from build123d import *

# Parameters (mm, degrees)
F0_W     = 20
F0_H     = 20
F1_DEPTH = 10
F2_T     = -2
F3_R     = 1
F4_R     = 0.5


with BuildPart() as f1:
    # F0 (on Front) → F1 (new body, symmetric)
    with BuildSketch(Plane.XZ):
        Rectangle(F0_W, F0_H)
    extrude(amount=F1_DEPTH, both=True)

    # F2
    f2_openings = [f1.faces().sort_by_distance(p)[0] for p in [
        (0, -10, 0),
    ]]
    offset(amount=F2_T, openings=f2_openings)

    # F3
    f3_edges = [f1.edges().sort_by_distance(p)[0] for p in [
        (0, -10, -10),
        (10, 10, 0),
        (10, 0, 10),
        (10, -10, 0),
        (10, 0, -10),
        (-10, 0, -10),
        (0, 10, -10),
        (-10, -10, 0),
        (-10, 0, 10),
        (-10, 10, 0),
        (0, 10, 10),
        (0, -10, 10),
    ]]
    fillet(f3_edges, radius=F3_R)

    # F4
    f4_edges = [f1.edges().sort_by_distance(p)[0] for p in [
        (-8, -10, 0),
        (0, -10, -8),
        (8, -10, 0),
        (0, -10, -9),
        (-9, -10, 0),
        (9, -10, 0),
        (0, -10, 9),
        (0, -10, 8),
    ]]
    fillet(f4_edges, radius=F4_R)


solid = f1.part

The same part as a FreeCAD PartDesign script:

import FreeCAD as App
import Part
import Sketcher

V = App.Vector
Q = App.Units.Quantity


def edges_at(feature, points):
    """Names of the edges that pass closest to the given points."""
    edges = feature.Shape.Edges
    near = lambda p: min(range(len(edges)), key=lambda i: edges[i].distToShape(Part.Vertex(*p))[0])
    return sorted({f"Edge{near(p) + 1}" for p in points})


def faces_at(feature, points):
    """Names of the faces that lie closest to the given points."""
    faces = feature.Shape.Faces
    near = lambda p: min(range(len(faces)), key=lambda i: faces[i].distToShape(Part.Vertex(*p))[0])
    return sorted({f"Face{near(p) + 1}" for p in points})


def add_polygon(sketch, points):
    """Adds a closed chain of lines whose ends are joined by coincident constraints."""
    first, n = sketch.GeometryCount, len(points)
    for a, b in zip(points, points[1:] + points[:1]):
        sketch.addGeometry(Part.LineSegment(App.Vector(*a, 0), App.Vector(*b, 0)), False)
    for i in range(n):
        sketch.addConstraint(Sketcher.Constraint("Coincident", first + i, 2, first + (i + 1) % n, 1))

doc = App.newDocument("Part")
body = doc.addObject("PartDesign::Body", "Body")

sketch1 = doc.addObject("Sketcher::SketchObject", "Sketch")
body.addObject(sketch1)
sketch1.AttachmentSupport = (doc.XZ_Plane, [""])
sketch1.MapMode = "FlatFace"
add_polygon(sketch1, [(-10, 10), (-10, -10), (10, -10), (10, 10)])
sketch1.addConstraint([
    Sketcher.Constraint("Vertical", 0),
    Sketcher.Constraint("Horizontal", 1),
    Sketcher.Constraint("Vertical", 2),
    Sketcher.Constraint("Horizontal", 3),
    Sketcher.Constraint("Symmetric", 0, 2, 2, 2, -1, 1),
    Sketcher.Constraint("Equal", 3, 0),
    Sketcher.Constraint("DistanceX", 1, 1, 1, 2, Q("20 mm")),
])
pad1 = doc.addObject("PartDesign::Pad", "Pad")
body.addObject(pad1)
pad1.Profile = sketch1
pad1.Length = 20
pad1.Midplane = True
doc.recompute()

thickness = doc.addObject("PartDesign::Thickness", "Thickness")
body.addObject(thickness)
thickness.Base = (pad1, faces_at(pad1, [(0, -10, 0)]))
thickness.Value = 2
thickness.Reversed = True
thickness.Join = "Arc"
doc.recompute()

fillet = doc.addObject("PartDesign::Fillet", "Fillet")
body.addObject(fillet)
fillet.Base = (thickness, edges_at(thickness, [
    (0, -10, -10),
    (10, 10, 0),
    (10, 0, 10),
    (10, -10, 0),
    (10, 0, -10),
    (-10, 0, -10),
    (0, 10, -10),
    (-10, -10, 0),
    (-10, 0, 10),
    (-10, 10, 0),
    (0, 10, 10),
    (0, -10, 10),
]))
fillet.Radius = 1
doc.recompute()

fillet2 = doc.addObject("PartDesign::Fillet", "Fillet001")
body.addObject(fillet2)
fillet2.Base = (fillet, edges_at(fillet, [
    (-8, -10, 0),
    (0, -10, -8),
    (8, -10, 0),
    (0, -10, -9),
    (-9, -10, 0),
    (9, -10, 0),
    (0, -10, 9),
    (0, -10, 8),
]))
fillet2.Radius = 0.5

doc.recompute()
